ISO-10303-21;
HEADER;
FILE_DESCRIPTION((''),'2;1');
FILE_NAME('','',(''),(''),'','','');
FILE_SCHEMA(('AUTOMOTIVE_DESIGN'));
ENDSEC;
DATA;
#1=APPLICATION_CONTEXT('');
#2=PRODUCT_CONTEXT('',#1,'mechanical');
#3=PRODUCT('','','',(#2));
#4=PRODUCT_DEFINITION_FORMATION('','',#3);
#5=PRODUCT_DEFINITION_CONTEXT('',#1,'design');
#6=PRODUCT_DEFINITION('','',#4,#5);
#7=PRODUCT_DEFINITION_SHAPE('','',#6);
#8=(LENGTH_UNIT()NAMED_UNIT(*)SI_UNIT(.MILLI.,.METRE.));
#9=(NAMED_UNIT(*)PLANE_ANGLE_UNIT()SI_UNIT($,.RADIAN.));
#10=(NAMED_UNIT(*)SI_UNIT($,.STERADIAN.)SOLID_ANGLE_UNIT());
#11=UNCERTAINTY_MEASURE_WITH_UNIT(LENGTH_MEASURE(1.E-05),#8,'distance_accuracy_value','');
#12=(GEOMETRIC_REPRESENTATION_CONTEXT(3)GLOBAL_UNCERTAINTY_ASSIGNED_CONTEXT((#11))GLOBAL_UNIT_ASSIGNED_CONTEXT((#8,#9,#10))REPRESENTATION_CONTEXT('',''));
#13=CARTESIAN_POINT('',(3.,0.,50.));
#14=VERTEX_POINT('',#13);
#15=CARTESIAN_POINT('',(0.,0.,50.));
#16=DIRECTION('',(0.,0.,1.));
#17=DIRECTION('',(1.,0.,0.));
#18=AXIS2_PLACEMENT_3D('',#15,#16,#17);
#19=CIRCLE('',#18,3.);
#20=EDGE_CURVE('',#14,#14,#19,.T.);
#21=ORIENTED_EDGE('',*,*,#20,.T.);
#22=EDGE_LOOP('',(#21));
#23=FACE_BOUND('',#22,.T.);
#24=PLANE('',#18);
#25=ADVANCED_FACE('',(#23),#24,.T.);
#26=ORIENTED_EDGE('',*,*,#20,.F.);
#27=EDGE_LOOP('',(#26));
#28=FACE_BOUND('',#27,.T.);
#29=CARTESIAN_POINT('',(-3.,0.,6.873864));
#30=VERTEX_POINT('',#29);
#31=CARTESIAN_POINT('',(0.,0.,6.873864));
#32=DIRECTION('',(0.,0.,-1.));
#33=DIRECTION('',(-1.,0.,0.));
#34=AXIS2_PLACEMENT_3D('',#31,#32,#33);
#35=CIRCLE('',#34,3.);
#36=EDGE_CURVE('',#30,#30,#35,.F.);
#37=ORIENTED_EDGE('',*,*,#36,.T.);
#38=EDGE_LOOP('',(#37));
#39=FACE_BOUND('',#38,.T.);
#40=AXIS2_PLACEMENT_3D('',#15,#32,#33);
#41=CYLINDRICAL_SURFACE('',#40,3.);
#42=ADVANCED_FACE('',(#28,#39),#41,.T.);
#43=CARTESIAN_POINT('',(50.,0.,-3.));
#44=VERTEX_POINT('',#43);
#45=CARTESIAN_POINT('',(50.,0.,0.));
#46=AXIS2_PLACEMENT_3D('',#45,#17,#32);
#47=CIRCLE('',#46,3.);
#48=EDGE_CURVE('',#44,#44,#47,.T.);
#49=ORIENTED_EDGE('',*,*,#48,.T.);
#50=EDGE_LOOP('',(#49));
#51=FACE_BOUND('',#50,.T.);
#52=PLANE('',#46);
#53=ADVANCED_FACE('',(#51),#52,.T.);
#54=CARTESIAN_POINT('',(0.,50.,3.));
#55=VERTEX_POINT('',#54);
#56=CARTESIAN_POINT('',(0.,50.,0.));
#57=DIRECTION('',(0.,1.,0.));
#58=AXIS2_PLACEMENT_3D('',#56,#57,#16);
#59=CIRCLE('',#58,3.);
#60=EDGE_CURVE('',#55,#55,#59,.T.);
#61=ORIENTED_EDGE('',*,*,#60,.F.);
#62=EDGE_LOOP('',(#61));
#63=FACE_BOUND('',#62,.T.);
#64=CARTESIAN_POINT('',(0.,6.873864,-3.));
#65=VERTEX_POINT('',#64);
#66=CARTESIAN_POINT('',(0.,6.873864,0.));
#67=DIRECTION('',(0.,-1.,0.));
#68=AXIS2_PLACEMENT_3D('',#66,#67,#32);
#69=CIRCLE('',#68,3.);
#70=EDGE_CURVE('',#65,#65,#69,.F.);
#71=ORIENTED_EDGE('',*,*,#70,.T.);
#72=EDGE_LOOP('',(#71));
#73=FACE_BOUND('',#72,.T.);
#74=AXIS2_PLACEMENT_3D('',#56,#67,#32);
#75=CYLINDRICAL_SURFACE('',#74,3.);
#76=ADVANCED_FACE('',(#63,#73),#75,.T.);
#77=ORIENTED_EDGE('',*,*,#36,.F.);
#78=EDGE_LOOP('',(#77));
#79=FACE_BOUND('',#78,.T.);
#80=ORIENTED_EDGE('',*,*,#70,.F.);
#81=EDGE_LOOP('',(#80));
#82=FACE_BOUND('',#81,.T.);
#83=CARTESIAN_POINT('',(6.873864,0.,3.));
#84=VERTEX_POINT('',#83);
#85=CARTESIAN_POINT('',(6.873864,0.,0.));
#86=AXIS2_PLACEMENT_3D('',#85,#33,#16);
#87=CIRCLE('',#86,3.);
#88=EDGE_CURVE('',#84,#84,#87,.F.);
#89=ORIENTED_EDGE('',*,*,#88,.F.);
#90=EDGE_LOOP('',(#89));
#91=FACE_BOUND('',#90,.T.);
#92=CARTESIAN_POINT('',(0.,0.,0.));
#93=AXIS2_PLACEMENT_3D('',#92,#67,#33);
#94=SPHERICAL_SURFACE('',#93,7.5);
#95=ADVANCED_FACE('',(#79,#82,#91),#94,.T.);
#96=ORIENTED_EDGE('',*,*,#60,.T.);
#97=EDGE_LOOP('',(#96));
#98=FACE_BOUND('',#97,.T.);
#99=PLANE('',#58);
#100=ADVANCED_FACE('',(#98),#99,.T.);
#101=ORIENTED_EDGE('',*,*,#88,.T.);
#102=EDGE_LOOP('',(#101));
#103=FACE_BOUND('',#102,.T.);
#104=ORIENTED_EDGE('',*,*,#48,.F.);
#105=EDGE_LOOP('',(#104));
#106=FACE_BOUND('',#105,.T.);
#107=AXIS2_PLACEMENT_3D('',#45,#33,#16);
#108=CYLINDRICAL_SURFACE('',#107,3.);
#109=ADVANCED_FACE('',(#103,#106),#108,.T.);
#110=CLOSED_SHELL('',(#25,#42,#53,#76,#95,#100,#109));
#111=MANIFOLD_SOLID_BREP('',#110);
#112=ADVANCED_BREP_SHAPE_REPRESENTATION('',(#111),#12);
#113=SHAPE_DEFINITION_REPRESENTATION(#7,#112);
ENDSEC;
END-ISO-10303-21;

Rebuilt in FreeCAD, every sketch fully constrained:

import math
import FreeCAD as App
import Part
import Sketcher
from FreeCAD import Vector

doc = App.newDocument("Part")
params = doc.addObject("Spreadsheet::Sheet", "Params")
for row, (alias, value) in enumerate([
    ("sketch1_radius", "7.5 mm"),
    ("revolution_angle", "360 deg"),
    ("sketch2_diameter", "6 mm"),
    ("pad1_length", "50 mm"),
    ("sketch3_diameter", "6 mm"),
    ("pad2_length", "50 mm"),
    ("sketch4_diameter", "6 mm"),
    ("pad3_length", "50 mm"),
], start=1):
    params.set(f"A{row}", alias)
    params.set(f"B{row}", "=" + value)
    params.setAlias(f"B{row}", alias)

body = doc.addObject("PartDesign::Body", "Body")

# Sketch on XY plane
sketch1 = body.newObject("Sketcher::SketchObject", "Sketch")
sketch1.AttachmentSupport = (doc.getObject("XY_Plane"), [""])
sketch1.MapMode = "FlatFace"
sketch1.addGeometry(Part.LineSegment(Vector(0, -8, 0), Vector(0, 8, 0)), False)
sketch1.addGeometry(Part.ArcOfCircle(Part.Circle(Vector(0, 0, 0), Vector(0, 0, 1), 8), math.radians(90), math.radians(270)), False)
sketch1.addConstraint(Sketcher.Constraint("Coincident", 0, 1, 1, 2))
sketch1.addConstraint(Sketcher.Constraint("Coincident", 1, 1, 0, 2))
sketch1.addConstraint(Sketcher.Constraint("Vertical", 0))
sketch1.addConstraint(Sketcher.Constraint("Coincident", 1, 3, -1, 1))
sketch1.addConstraint(Sketcher.Constraint("PointOnObject", 0, 1, -2))
sketch1.addConstraint(Sketcher.Constraint("Radius", 1, 7.5))
sketch1.setExpression("Constraints[5]", "Params.sketch1_radius")
revolution = body.newObject("PartDesign::Revolution", "Revolution")
revolution.Profile = sketch1
revolution.ReferenceAxis = (sketch1, ["V_Axis"])
revolution.setExpression("Angle", "Params.revolution_angle")

# Sketch on XZ plane
sketch2 = body.newObject("Sketcher::SketchObject", "Sketch001")
sketch2.AttachmentSupport = (doc.getObject("XZ_Plane"), [""])
sketch2.MapMode = "FlatFace"
sketch2.addGeometry(Part.Circle(Vector(0, 0, 0), Vector(0, 0, 1), 3), False)
sketch2.addConstraint(Sketcher.Constraint("Coincident", 0, 3, -1, 1))
sketch2.addConstraint(Sketcher.Constraint("Diameter", 0, 6.0))
sketch2.setExpression("Constraints[1]", "Params.sketch2_diameter")
pad1 = body.newObject("PartDesign::Pad", "Pad")
pad1.Profile = sketch2
pad1.setExpression("Length", "Params.pad1_length")
pad1.Reversed = True

# Sketch on XY plane
sketch3 = body.newObject("Sketcher::SketchObject", "Sketch002")
sketch3.AttachmentSupport = (doc.getObject("XY_Plane"), [""])
sketch3.MapMode = "FlatFace"
sketch3.addGeometry(Part.Circle(Vector(0, 0, 0), Vector(0, 0, 1), 3), False)
sketch3.addConstraint(Sketcher.Constraint("Coincident", 0, 3, -1, 1))
sketch3.addConstraint(Sketcher.Constraint("Diameter", 0, 6.0))
sketch3.setExpression("Constraints[1]", "Params.sketch3_diameter")
pad2 = body.newObject("PartDesign::Pad", "Pad001")
pad2.Profile = sketch3
pad2.setExpression("Length", "Params.pad2_length")

# Sketch on YZ plane
sketch4 = body.newObject("Sketcher::SketchObject", "Sketch003")
sketch4.AttachmentSupport = (doc.getObject("YZ_Plane"), [""])
sketch4.MapMode = "FlatFace"
sketch4.addGeometry(Part.Circle(Vector(0, 0, 0), Vector(0, 0, 1), 3), False)
sketch4.addConstraint(Sketcher.Constraint("Coincident", 0, 3, -1, 1))
sketch4.addConstraint(Sketcher.Constraint("Diameter", 0, 6.0))
sketch4.setExpression("Constraints[1]", "Params.sketch4_diameter")
pad3 = body.newObject("PartDesign::Pad", "Pad002")
pad3.Profile = sketch4
pad3.setExpression("Length", "Params.pad3_length")

doc.recompute()
